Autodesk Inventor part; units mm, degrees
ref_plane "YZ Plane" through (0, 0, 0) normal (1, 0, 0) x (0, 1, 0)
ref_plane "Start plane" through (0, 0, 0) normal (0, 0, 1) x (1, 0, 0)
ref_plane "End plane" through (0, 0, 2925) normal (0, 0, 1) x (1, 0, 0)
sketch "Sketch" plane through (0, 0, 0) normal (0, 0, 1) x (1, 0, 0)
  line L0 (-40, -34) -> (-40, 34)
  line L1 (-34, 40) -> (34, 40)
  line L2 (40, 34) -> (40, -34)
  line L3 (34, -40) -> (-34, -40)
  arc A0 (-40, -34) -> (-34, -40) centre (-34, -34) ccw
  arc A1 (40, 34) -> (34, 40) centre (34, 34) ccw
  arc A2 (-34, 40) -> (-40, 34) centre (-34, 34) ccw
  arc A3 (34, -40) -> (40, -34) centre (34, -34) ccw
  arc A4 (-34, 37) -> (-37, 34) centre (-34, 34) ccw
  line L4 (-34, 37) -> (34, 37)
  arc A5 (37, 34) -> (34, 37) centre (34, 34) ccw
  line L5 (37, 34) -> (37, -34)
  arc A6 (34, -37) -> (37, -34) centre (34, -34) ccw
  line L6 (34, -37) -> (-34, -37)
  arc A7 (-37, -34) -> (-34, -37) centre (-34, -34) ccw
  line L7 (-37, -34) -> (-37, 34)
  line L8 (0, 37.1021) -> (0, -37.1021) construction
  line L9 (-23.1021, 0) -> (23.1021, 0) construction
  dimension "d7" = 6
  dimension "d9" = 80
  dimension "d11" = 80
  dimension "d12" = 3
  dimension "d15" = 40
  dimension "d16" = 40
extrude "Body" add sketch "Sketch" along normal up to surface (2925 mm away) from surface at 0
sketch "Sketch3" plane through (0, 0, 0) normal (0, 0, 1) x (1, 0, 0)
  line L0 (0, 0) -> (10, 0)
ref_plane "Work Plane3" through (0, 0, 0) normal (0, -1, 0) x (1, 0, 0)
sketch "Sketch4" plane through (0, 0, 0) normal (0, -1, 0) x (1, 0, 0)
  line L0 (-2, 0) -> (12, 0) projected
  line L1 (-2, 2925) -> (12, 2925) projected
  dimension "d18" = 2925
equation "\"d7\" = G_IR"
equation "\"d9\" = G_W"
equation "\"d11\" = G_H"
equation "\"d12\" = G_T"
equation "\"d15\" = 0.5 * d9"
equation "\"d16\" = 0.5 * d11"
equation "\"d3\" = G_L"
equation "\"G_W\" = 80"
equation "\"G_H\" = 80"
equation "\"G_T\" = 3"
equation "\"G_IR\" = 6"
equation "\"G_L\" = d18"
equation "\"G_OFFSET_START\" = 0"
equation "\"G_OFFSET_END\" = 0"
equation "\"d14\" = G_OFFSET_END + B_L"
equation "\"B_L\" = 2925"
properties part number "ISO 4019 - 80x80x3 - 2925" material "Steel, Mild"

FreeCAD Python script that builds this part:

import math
import FreeCAD as App
import Part
import Sketcher
from FreeCAD import Vector
Q = App.Units.Quantity

doc = App.newDocument("Part")
params = doc.addObject("Spreadsheet::Sheet", "Params")
for row, (alias, value) in enumerate([
    ("sketch1_radius", "6 mm"),
    ("sketch1_radius2", "3 mm"),
    ("pad1_length", "2925 mm"),
], start=1):
    params.set(f"A{row}", alias)
    params.set(f"B{row}", "=" + value)
    params.setAlias(f"B{row}", alias)

body = doc.addObject("PartDesign::Body", "Body")

# Sketch on XY plane
sketch1 = body.newObject("Sketcher::SketchObject", "Sketch")
sketch1.AttachmentSupport = (doc.getObject("XY_Plane"), [""])
sketch1.MapMode = "FlatFace"
sketch1.addGeometry(Part.LineSegment(Vector(-40, 34, 0), Vector(-40, -34, 0)), False)
sketch1.addGeometry(Part.ArcOfCircle(Part.Circle(Vector(-34, -34, 0), Vector(0, 0, 1), 6), math.radians(180), math.radians(270)), False)
sketch1.addGeometry(Part.LineSegment(Vector(-34, -40, 0), Vector(34, -40, 0)), False)
sketch1.addGeometry(Part.ArcOfCircle(Part.Circle(Vector(34, -34, 0), Vector(0, 0, 1), 6), math.radians(-90), math.radians(0)), False)
sketch1.addGeometry(Part.LineSegment(Vector(40, -34, 0), Vector(40, 34, 0)), False)
sketch1.addGeometry(Part.ArcOfCircle(Part.Circle(Vector(34, 34, 0), Vector(0, 0, 1), 6), math.radians(0), math.radians(90)), False)
sketch1.addGeometry(Part.LineSegment(Vector(34, 40, 0), Vector(-34, 40, 0)), False)
sketch1.addGeometry(Part.ArcOfCircle(Part.Circle(Vector(-34, 34, 0), Vector(0, 0, 1), 6), math.radians(90), math.radians(180)), False)
sketch1.addGeometry(Part.ArcOfCircle(Part.Circle(Vector(-34, 34, 0), Vector(0, 0, 1), 3), math.radians(90), math.radians(180)), False)
sketch1.addGeometry(Part.LineSegment(Vector(-34, 37, 0), Vector(34, 37, 0)), False)
sketch1.addGeometry(Part.ArcOfCircle(Part.Circle(Vector(34, 34, 0), Vector(0, 0, 1), 3), math.radians(0), math.radians(90)), False)
sketch1.addGeometry(Part.LineSegment(Vector(37, 34, 0), Vector(37, -34, 0)), False)
sketch1.addGeometry(Part.ArcOfCircle(Part.Circle(Vector(34, -34, 0), Vector(0, 0, 1), 3), math.radians(-90), math.radians(0)), False)
sketch1.addGeometry(Part.LineSegment(Vector(34, -37, 0), Vector(-34, -37, 0)), False)
sketch1.addGeometry(Part.ArcOfCircle(Part.Circle(Vector(-34, -34, 0), Vector(0, 0, 1), 3), math.radians(180), math.radians(270)), False)
sketch1.addGeometry(Part.LineSegment(Vector(-37, -34, 0), Vector(-37, 34, 0)), False)
sketch1.addConstraint(Sketcher.Constraint("Tangent", 0, 2, 1, 1))
sketch1.addConstraint(Sketcher.Constraint("Tangent", 1, 2, 2, 1))
sketch1.addConstraint(Sketcher.Constraint("Tangent", 2, 2, 3, 1))
sketch1.addConstraint(Sketcher.Constraint("Tangent", 3, 2, 4, 1))
sketch1.addConstraint(Sketcher.Constraint("Tangent", 4, 2, 5, 1))
sketch1.addConstraint(Sketcher.Constraint("Tangent", 5, 2, 6, 1))
sketch1.addConstraint(Sketcher.Constraint("Tangent", 6, 2, 7, 1))
sketch1.addConstraint(Sketcher.Constraint("Tangent", 7, 2, 0, 1))
sketch1.addConstraint(Sketcher.Constraint("Tangent", 8, 1, 9, 1))
sketch1.addConstraint(Sketcher.Constraint("Tangent", 9, 2, 10, 2))
sketch1.addConstraint(Sketcher.Constraint("Tangent", 10, 1, 11, 1))
sketch1.addConstraint(Sketcher.Constraint("Tangent", 11, 2, 12, 2))
sketch1.addConstraint(Sketcher.Constraint("Tangent", 12, 1, 13, 1))
sketch1.addConstraint(Sketcher.Constraint("Tangent", 13, 2, 14, 2))
sketch1.addConstraint(Sketcher.Constraint("Tangent", 14, 1, 15, 1))
sketch1.addConstraint(Sketcher.Constraint("Tangent", 15, 2, 8, 2))
sketch1.addConstraint(Sketcher.Constraint("Vertical", 0))
sketch1.addConstraint(Sketcher.Constraint("Horizontal", 2))
sketch1.addConstraint(Sketcher.Constraint("Vertical", 4))
sketch1.addConstraint(Sketcher.Constraint("Horizontal", 6))
sketch1.addConstraint(Sketcher.Constraint("Horizontal", 9))
sketch1.addConstraint(Sketcher.Constraint("Vertical", 11))
sketch1.addConstraint(Sketcher.Constraint("Horizontal", 13))
sketch1.addConstraint(Sketcher.Constraint("Vertical", 15))
sketch1.addConstraint(Sketcher.Constraint("Coincident", 8, 3, 7, 3))
sketch1.addConstraint(Sketcher.Constraint("Coincident", 10, 3, 5, 3))
sketch1.addConstraint(Sketcher.Constraint("Coincident", 12, 3, 3, 3))
sketch1.addConstraint(Sketcher.Constraint("Equal", 1, 3))
sketch1.addConstraint(Sketcher.Constraint("Equal", 3, 5))
sketch1.addConstraint(Sketcher.Constraint("Equal", 5, 7))
sketch1.addConstraint(Sketcher.Constraint("Equal", 12, 14))
sketch1.addConstraint(Sketcher.Constraint("Symmetric", 1, 3, 5, 3, -1, 1))
sketch1.addConstraint(Sketcher.Constraint("Equal", 13, 0))
sketch1.addConstraint(Sketcher.Constraint("Radius", 1, Q("6 mm")))
sketch1.addConstraint(Sketcher.Constraint("Radius", 8, Q("3 mm")))
sketch1.addConstraint(Sketcher.Constraint("DistanceX", 0, 2, -1, 1, Q("40 mm")))
sketch1.setExpression("Constraints[33]", "Params.sketch1_radius")
sketch1.setExpression("Constraints[34]", "Params.sketch1_radius2")
pad1 = body.newObject("PartDesign::Pad", "Pad")
pad1.Profile = sketch1
pad1.setExpression("Length", "Params.pad1_length")

doc.recompute()
